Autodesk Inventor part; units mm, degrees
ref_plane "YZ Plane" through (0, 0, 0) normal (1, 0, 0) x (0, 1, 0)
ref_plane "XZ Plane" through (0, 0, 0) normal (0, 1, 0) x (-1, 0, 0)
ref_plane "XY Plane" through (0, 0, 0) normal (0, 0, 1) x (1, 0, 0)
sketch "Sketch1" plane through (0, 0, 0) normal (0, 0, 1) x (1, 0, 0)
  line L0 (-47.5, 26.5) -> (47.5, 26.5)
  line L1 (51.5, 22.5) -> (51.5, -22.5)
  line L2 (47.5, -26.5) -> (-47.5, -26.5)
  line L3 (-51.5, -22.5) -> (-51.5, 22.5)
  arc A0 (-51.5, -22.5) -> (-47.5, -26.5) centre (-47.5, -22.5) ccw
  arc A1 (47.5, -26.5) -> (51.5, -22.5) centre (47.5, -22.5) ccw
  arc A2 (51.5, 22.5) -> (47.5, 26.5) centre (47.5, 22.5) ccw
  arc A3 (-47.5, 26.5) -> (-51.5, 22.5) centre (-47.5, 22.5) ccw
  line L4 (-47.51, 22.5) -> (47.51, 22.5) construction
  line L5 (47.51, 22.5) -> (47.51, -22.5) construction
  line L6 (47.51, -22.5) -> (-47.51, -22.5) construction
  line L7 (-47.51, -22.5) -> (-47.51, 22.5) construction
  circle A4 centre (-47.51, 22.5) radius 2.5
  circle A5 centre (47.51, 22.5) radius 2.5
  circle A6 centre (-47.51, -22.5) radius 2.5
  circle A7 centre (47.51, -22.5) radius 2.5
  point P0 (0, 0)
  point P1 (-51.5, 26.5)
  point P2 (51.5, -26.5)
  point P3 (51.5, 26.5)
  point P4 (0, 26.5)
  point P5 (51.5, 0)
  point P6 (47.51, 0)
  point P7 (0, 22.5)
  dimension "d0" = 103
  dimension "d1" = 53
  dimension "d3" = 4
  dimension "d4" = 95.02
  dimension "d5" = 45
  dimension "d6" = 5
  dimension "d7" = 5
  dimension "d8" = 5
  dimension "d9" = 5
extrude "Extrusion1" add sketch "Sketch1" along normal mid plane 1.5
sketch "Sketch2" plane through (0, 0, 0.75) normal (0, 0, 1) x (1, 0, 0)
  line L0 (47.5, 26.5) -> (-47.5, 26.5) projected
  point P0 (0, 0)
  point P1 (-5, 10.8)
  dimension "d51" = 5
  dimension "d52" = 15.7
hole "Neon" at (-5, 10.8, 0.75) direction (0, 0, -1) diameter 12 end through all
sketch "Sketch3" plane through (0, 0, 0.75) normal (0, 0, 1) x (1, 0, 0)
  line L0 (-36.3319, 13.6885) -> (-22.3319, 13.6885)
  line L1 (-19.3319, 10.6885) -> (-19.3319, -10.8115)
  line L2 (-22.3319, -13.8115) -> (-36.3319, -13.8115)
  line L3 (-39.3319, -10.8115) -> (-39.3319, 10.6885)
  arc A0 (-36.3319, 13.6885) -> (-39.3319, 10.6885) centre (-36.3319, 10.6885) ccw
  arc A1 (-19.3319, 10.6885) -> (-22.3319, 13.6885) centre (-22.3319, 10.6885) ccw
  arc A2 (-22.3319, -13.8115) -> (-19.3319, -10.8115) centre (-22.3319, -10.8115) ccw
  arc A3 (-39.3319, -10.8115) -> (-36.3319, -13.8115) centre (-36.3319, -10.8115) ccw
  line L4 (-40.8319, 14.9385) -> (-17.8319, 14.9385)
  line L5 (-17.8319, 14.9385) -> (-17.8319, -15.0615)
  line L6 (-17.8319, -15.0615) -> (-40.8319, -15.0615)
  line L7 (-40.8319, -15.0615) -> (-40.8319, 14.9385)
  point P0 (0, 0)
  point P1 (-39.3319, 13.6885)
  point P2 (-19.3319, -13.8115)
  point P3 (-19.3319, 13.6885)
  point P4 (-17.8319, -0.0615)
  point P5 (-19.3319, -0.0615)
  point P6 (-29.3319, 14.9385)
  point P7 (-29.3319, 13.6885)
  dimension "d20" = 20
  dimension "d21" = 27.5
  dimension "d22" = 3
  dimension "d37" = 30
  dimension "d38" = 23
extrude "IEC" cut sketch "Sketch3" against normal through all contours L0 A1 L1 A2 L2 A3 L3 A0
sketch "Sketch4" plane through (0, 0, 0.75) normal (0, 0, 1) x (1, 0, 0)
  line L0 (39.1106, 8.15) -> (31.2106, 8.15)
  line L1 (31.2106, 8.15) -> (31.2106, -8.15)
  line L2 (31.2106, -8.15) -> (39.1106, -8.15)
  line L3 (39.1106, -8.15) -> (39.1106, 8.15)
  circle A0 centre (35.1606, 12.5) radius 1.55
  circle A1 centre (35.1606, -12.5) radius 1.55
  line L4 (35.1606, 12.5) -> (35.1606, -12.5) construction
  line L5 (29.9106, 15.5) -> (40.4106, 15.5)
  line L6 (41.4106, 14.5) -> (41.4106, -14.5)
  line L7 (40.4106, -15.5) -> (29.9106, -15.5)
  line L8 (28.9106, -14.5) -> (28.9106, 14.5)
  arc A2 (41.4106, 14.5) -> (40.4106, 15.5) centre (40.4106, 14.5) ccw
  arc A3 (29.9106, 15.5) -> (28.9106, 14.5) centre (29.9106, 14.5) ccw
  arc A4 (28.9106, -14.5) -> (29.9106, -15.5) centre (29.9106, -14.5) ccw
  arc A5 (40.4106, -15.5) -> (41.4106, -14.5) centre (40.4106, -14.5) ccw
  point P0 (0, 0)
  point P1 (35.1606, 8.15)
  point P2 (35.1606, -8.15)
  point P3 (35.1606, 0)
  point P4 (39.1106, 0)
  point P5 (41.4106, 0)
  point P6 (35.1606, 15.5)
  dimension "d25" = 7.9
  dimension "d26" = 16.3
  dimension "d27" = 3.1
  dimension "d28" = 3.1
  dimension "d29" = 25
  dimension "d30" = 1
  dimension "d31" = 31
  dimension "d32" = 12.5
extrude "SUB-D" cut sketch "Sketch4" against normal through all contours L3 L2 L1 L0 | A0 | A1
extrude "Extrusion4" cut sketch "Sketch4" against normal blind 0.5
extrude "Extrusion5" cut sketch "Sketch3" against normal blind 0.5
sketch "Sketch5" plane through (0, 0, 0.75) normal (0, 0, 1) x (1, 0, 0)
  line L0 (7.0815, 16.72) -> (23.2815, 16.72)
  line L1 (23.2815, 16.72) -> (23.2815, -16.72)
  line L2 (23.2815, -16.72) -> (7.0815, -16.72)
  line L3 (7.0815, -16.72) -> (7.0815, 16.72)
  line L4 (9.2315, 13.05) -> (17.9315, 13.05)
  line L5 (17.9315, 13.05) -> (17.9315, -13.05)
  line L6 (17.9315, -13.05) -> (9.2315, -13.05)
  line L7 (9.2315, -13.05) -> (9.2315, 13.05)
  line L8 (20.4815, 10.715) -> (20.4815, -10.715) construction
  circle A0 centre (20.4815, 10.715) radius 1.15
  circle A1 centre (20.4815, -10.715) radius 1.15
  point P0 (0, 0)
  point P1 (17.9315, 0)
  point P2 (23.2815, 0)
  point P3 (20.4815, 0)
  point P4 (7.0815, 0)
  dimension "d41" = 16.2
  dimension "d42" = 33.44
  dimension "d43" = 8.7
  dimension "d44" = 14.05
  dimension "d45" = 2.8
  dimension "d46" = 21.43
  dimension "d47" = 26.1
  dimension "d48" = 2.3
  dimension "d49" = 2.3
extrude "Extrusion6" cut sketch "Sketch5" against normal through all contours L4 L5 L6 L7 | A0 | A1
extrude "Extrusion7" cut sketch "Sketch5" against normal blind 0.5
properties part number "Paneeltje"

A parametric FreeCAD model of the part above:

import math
import FreeCAD as App
import Part
import Sketcher

V = App.Vector


def add_polygon(sketch, points):
    """Adds a closed chain of lines whose ends are joined by coincident constraints."""
    first, n = sketch.GeometryCount, len(points)
    for a, b in zip(points, points[1:] + points[:1]):
        sketch.addGeometry(Part.LineSegment(App.Vector(*a, 0), App.Vector(*b, 0)), False)
    for i in range(n):
        sketch.addConstraint(Sketcher.Constraint("Coincident", first + i, 2, first + (i + 1) % n, 1))

doc = App.newDocument("Part")
body = doc.addObject("PartDesign::Body", "Body")

sketch1 = body.newObject("Sketcher::SketchObject", "Sketch")
sketch1.AttachmentSupport = (doc.getObject("XY_Plane"), [""])
sketch1.MapMode = "FlatFace"
sketch1.addGeometry(Part.LineSegment(V(47.5, 26.5, 0), V(-47.5, 26.5, 0)), False)
sketch1.addGeometry(Part.ArcOfCircle(Part.Circle(V(-47.5, 22.5, 0), V(0, 0, 1), 4), math.radians(90), math.radians(180)), False)
sketch1.addGeometry(Part.LineSegment(V(-51.5, 22.5, 0), V(-51.5, -22.5, 0)), False)
sketch1.addGeometry(Part.ArcOfCircle(Part.Circle(V(-47.5, -22.5, 0), V(0, 0, 1), 4), math.radians(180), math.radians(270)), False)
sketch1.addGeometry(Part.LineSegment(V(-47.5, -26.5, 0), V(47.5, -26.5, 0)), False)
sketch1.addGeometry(Part.ArcOfCircle(Part.Circle(V(47.5, -22.5, 0), V(0, 0, 1), 4), math.radians(-90), math.radians(0)), False)
sketch1.addGeometry(Part.LineSegment(V(51.5, -22.5, 0), V(51.5, 22.5, 0)), False)
sketch1.addGeometry(Part.ArcOfCircle(Part.Circle(V(47.5, 22.5, 0), V(0, 0, 1), 4), math.radians(0), math.radians(90)), False)
sketch1.addGeometry(Part.Circle(V(-47.51, -22.5, 0), V(0, 0, 1), 2.5), False)
sketch1.addGeometry(Part.Circle(V(47.51, -22.5, 0), V(0, 0, 1), 2.5), False)
sketch1.addGeometry(Part.Circle(V(-47.51, 22.5, 0), V(0, 0, 1), 2.5), False)
sketch1.addGeometry(Part.Circle(V(47.51, 22.5, 0), V(0, 0, 1), 2.5), False)
sketch1.addConstraint(Sketcher.Constraint("Tangent", 0, 2, 1, 1))
sketch1.addConstraint(Sketcher.Constraint("Tangent", 1, 2, 2, 1))
sketch1.addConstraint(Sketcher.Constraint("Tangent", 2, 2, 3, 1))
sketch1.addConstraint(Sketcher.Constraint("Tangent", 3, 2, 4, 1))
sketch1.addConstraint(Sketcher.Constraint("Tangent", 4, 2, 5, 1))
sketch1.addConstraint(Sketcher.Constraint("Tangent", 5, 2, 6, 1))
sketch1.addConstraint(Sketcher.Constraint("Tangent", 6, 2, 7, 1))
sketch1.addConstraint(Sketcher.Constraint("Tangent", 7, 2, 0, 1))
sketch1.addConstraint(Sketcher.Constraint("Horizontal", 0))
sketch1.addConstraint(Sketcher.Constraint("Vertical", 2))
sketch1.addConstraint(Sketcher.Constraint("Horizontal", 4))
sketch1.addConstraint(Sketcher.Constraint("Vertical", 6))
sketch1.addConstraint(Sketcher.Constraint("Equal", 1, 3))
sketch1.addConstraint(Sketcher.Constraint("Equal", 3, 5))
sketch1.addConstraint(Sketcher.Constraint("Equal", 5, 7))
sketch1.addConstraint(Sketcher.Constraint("Equal", 8, 9))
sketch1.addConstraint(Sketcher.Constraint("Equal", 9, 10))
sketch1.addConstraint(Sketcher.Constraint("Equal", 10, 11))
sketch1.addConstraint(Sketcher.Constraint("Symmetric", 1, 3, 5, 3, -1, 1))
sketch1.addConstraint(Sketcher.Constraint("Symmetric", 9, 3, 10, 3, -1, 1))
sketch1.addConstraint(Sketcher.Constraint("Symmetric", 8, 3, 11, 3, -1, 1))
sketch1.addConstraint(Sketcher.Constraint("Symmetric", 8, 3, 9, 3, -2))
sketch1.addConstraint(Sketcher.Constraint("Horizontal", 5, 3, 8, 3))
sketch1.addConstraint(Sketcher.Constraint("Diameter", 8, 5.0))
sketch1.addConstraint(Sketcher.Constraint("Radius", 1, 4.0))
sketch1.addConstraint(Sketcher.Constraint("DistanceY", 2, 2, 2, 1, 45.0))
sketch1.addConstraint(Sketcher.Constraint("DistanceX", 0, 2, 0, 1, 95.0))
sketch1.addConstraint(Sketcher.Constraint("DistanceX", 8, 3, 9, 3, 95.02))
pad1 = body.newObject("PartDesign::Pad", "Pad")
pad1.Profile = sketch1
pad1.Length = 1.5
pad1.Midplane = True

sketch2 = body.newObject("Sketcher::SketchObject", "Sketch001")
sketch2.AttachmentSupport = (doc.getObject("XY_Plane"), [""])
sketch2.MapMode = "FlatFace"
sketch2.AttachmentOffset = App.Placement(V(0, 0, 0.75), App.Rotation())
sketch2.addGeometry(Part.Circle(V(-5, 10.8, 0), V(0, 0, 1), 6), False)
sketch2.addConstraint(Sketcher.Constraint("Diameter", 0, 12.0))
sketch2.addConstraint(Sketcher.Constraint("DistanceX", 0, 3, -1, 1, 5.0))
sketch2.addConstraint(Sketcher.Constraint("DistanceY", -1, 1, 0, 3, 10.8))
doc.recompute()
hole = body.newObject("PartDesign::Hole", "Hole")
hole.Profile = sketch2
hole.ThreadType = "None"
hole.Diameter = 12
hole.DepthType = "ThroughAll"

sketch3 = body.newObject("Sketcher::SketchObject", "Sketch002")
sketch3.AttachmentSupport = (doc.getObject("XY_Plane"), [""])
sketch3.MapMode = "FlatFace"
sketch3.AttachmentOffset = App.Placement(V(0, 0, 0.75), App.Rotation())
sketch3.addGeometry(Part.LineSegment(V(-22.3319, 13.6885, 0), V(-36.3319, 13.6885, 0)), False)
sketch3.addGeometry(Part.ArcOfCircle(Part.Circle(V(-36.3319, 10.6885, 0), V(0, 0, 1), 3), math.radians(90), math.radians(180)), False)
sketch3.addGeometry(Part.LineSegment(V(-39.3319, 10.6885, 0), V(-39.3319, -10.8115, 0)), False)
sketch3.addGeometry(Part.ArcOfCircle(Part.Circle(V(-36.3319, -10.8115, 0), V(0, 0, 1), 3), math.radians(180), math.radians(270)), False)
sketch3.addGeometry(Part.LineSegment(V(-36.3319, -13.8115, 0), V(-22.3319, -13.8115, 0)), False)
sketch3.addGeometry(Part.ArcOfCircle(Part.Circle(V(-22.3319, -10.8115, 0), V(0, 0, 1), 3), math.radians(-90), math.radians(0)), False)
sketch3.addGeometry(Part.LineSegment(V(-19.3319, -10.8115, 0), V(-19.3319, 10.6885, 0)), False)
sketch3.addGeometry(Part.ArcOfCircle(Part.Circle(V(-22.3319, 10.6885, 0), V(0, 0, 1), 3), math.radians(0), math.radians(90)), False)
sketch3.addConstraint(Sketcher.Constraint("Tangent", 0, 2, 1, 1))
sketch3.addConstraint(Sketcher.Constraint("Tangent", 1, 2, 2, 1))
sketch3.addConstraint(Sketcher.Constraint("Tangent", 2, 2, 3, 1))
sketch3.addConstraint(Sketcher.Constraint("Tangent", 3, 2, 4, 1))
sketch3.addConstraint(Sketcher.Constraint("Tangent", 4, 2, 5, 1))
sketch3.addConstraint(Sketcher.Constraint("Tangent", 5, 2, 6, 1))
sketch3.addConstraint(Sketcher.Constraint("Tangent", 6, 2, 7, 1))
sketch3.addConstraint(Sketcher.Constraint("Tangent", 7, 2, 0, 1))
sketch3.addConstraint(Sketcher.Constraint("Horizontal", 0))
sketch3.addConstraint(Sketcher.Constraint("Vertical", 2))
sketch3.addConstraint(Sketcher.Constraint("Horizontal", 4))
sketch3.addConstraint(Sketcher.Constraint("Vertical", 6))
sketch3.addConstraint(Sketcher.Constraint("Equal", 1, 3))
sketch3.addConstraint(Sketcher.Constraint("Equal", 3, 5))
sketch3.addConstraint(Sketcher.Constraint("Equal", 5, 7))
sketch3.addConstraint(Sketcher.Constraint("Radius", 1, 3.0))
sketch3.addConstraint(Sketcher.Constraint("DistanceX", 2, 2, 5, 2, 20.0))
sketch3.addConstraint(Sketcher.Constraint("DistanceY", 2, 2, 2, 1, 21.5))
sketch3.addConstraint(Sketcher.Constraint("DistanceX", 1, 3, -1, 1, 36.332))
sketch3.addConstraint(Sketcher.Constraint("DistanceY", -1, 1, 1, 3, 10.6885))
pocket1 = body.newObject("PartDesign::Pocket", "Pocket")
pocket1.Profile = sketch3
pocket1.Type = "ThroughAll"

sketch4 = body.newObject("Sketcher::SketchObject", "Sketch003")
sketch4.AttachmentSupport = (doc.getObject("XY_Plane"), [""])
sketch4.MapMode = "FlatFace"
sketch4.AttachmentOffset = App.Placement(V(0, 0, 0.75), App.Rotation())
add_polygon(sketch4, [(39.1106, -8.15), (39.1106, 8.15), (31.2106, 8.15), (31.2106, -8.15)])
sketch4.addGeometry(Part.Circle(V(35.1606, 12.5, 0), V(0, 0, 1), 1.55), False)
sketch4.addGeometry(Part.Circle(V(35.1606, -12.5, 0), V(0, 0, 1), 1.55), False)
sketch4.addConstraint(Sketcher.Constraint("Vertical", 0))
sketch4.addConstraint(Sketcher.Constraint("Horizontal", 1))
sketch4.addConstraint(Sketcher.Constraint("Vertical", 2))
sketch4.addConstraint(Sketcher.Constraint("Horizontal", 3))
sketch4.addConstraint(Sketcher.Constraint("Equal", 4, 5))
sketch4.addConstraint(Sketcher.Constraint("Symmetric", 4, 3, 5, 3, -1))
sketch4.addConstraint(Sketcher.Constraint("Diameter", 4, 3.1))
sketch4.addConstraint(Sketcher.Constraint("DistanceX", 1, 2, 1, 1, 7.9))
sketch4.addConstraint(Sketcher.Constraint("DistanceY", 0, 1, 0, 2, 16.3))
sketch4.addConstraint(Sketcher.Constraint("DistanceY", 5, 3, 4, 3, 25.0))
sketch4.addConstraint(Sketcher.Constraint("DistanceY", -1, 1, 0, 2, 8.15))
sketch4.addConstraint(Sketcher.Constraint("DistanceX", 4, 3, 0, 2, 3.95))
sketch4.addConstraint(Sketcher.Constraint("DistanceX", -1, 1, 4, 3, 35.1606))
pocket2 = body.newObject("PartDesign::Pocket", "Pocket001")
pocket2.Profile = sketch4
pocket2.Type = "ThroughAll"

sketch5 = body.newObject("Sketcher::SketchObject", "Sketch004")
sketch5.AttachmentSupport = (doc.getObject("XY_Plane"), [""])
sketch5.MapMode = "FlatFace"
sketch5.AttachmentOffset = App.Placement(V(0, 0, 0.75), App.Rotation())
sketch5.addGeometry(Part.LineSegment(V(40.4106, 15.5, 0), V(29.9106, 15.5, 0)), False)
sketch5.addGeometry(Part.ArcOfCircle(Part.Circle(V(29.9106, 14.5, 0), V(0, 0, 1), 1), math.radians(90), math.radians(180)), False)
sketch5.addGeometry(Part.LineSegment(V(28.9106, 14.5, 0), V(28.9106, -14.5, 0)), False)
sketch5.addGeometry(Part.ArcOfCircle(Part.Circle(V(29.9106, -14.5, 0), V(0, 0, 1), 1), math.radians(180), math.radians(270)), False)
sketch5.addGeometry(Part.LineSegment(V(29.9106, -15.5, 0), V(40.4106, -15.5, 0)), False)
sketch5.addGeometry(Part.ArcOfCircle(Part.Circle(V(40.4106, -14.5, 0), V(0, 0, 1), 1), math.radians(-90), math.radians(0)), False)
sketch5.addGeometry(Part.LineSegment(V(41.4106, -14.5, 0), V(41.4106, 14.5, 0)), False)
sketch5.addGeometry(Part.ArcOfCircle(Part.Circle(V(40.4106, 14.5, 0), V(0, 0, 1), 1), math.radians(0), math.radians(90)), False)
sketch5.addGeometry(Part.Circle(V(35.1606, -12.5, 0), V(0, 0, 1), 1.55), False)
add_polygon(sketch5, [(31.2106, 8.15), (39.1106, 8.15), (39.1106, -8.15), (31.2106, -8.15)])
sketch5.addGeometry(Part.Circle(V(35.1606, 12.5, 0), V(0, 0, 1), 1.55), False)
sketch5.addConstraint(Sketcher.Constraint("Tangent", 0, 2, 1, 1))
sketch5.addConstraint(Sketcher.Constraint("Tangent", 1, 2, 2, 1))
sketch5.addConstraint(Sketcher.Constraint("Tangent", 2, 2, 3, 1))
sketch5.addConstraint(Sketcher.Constraint("Tangent", 3, 2, 4, 1))
sketch5.addConstraint(Sketcher.Constraint("Tangent", 4, 2, 5, 1))
sketch5.addConstraint(Sketcher.Constraint("Tangent", 5, 2, 6, 1))
sketch5.addConstraint(Sketcher.Constraint("Tangent", 6, 2, 7, 1))
sketch5.addConstraint(Sketcher.Constraint("Tangent", 7, 2, 0, 1))
sketch5.addConstraint(Sketcher.Constraint("Horizontal", 0))
sketch5.addConstraint(Sketcher.Constraint("Vertical", 2))
sketch5.addConstraint(Sketcher.Constraint("Horizontal", 4))
sketch5.addConstraint(Sketcher.Constraint("Vertical", 6))
sketch5.addConstraint(Sketcher.Constraint("Horizontal", 9))
sketch5.addConstraint(Sketcher.Constraint("Vertical", 10))
sketch5.addConstraint(Sketcher.Constraint("Horizontal", 11))
sketch5.addConstraint(Sketcher.Constraint("Vertical", 12))
sketch5.addConstraint(Sketcher.Constraint("Equal", 1, 3))
sketch5.addConstraint(Sketcher.Constraint("Equal", 3, 5))
sketch5.addConstraint(Sketcher.Constraint("Equal", 5, 7))
sketch5.addConstraint(Sketcher.Constraint("Equal", 8, 13))
sketch5.addConstraint(Sketcher.Constraint("Symmetric", 8, 3, 13, 3, -1))
sketch5.addConstraint(Sketcher.Constraint("Radius", 1, 1.0))
sketch5.addConstraint(Sketcher.Constraint("Diameter", 8, 3.1))
sketch5.addConstraint(Sketcher.Constraint("DistanceX", 9, 1, 9, 2, 7.9))
sketch5.addConstraint(Sketcher.Constraint("DistanceY", 10, 2, 10, 1, 16.3))
sketch5.addConstraint(Sketcher.Constraint("DistanceY", 8, 3, 13, 3, 25.0))
sketch5.addConstraint(Sketcher.Constraint("DistanceX", 1, 2, 6, 2, 12.5))
sketch5.addConstraint(Sketcher.Constraint("DistanceY", 2, 2, 2, 1, 29.0))
sketch5.addConstraint(Sketcher.Constraint("DistanceY", 5, 3, 8, 3, 2.0))
sketch5.addConstraint(Sketcher.Constraint("DistanceX", 9, 2, 7, 3, 1.3))
sketch5.addConstraint(Sketcher.Constraint("DistanceY", -1, 1, 9, 2, 8.15))
sketch5.addConstraint(Sketcher.Constraint("DistanceX", 8, 3, 5, 3, 5.25))
sketch5.addConstraint(Sketcher.Constraint("DistanceX", -1, 1, 1, 3, 29.9106))
pocket3 = body.newObject("PartDesign::Pocket", "Pocket002")
pocket3.Profile = sketch5
pocket3.Length = 0.5

sketch6 = body.newObject("Sketcher::SketchObject", "Sketch005")
sketch6.AttachmentSupport = (doc.getObject("XY_Plane"), [""])
sketch6.MapMode = "FlatFace"
sketch6.AttachmentOffset = App.Placement(V(0, 0, 0.75), App.Rotation())
add_polygon(sketch6, [(-17.8319, 14.9385), (-40.8319, 14.9385), (-40.8319, -15.0615), (-17.8319, -15.0615)])
sketch6.addGeometry(Part.ArcOfCircle(Part.Circle(V(-36.3319, 10.6885, 0), V(0, 0, 1), 3), math.radians(90), math.radians(180)), False)
sketch6.addGeometry(Part.LineSegment(V(-36.3319, 13.6885, 0), V(-22.3319, 13.6885, 0)), False)
sketch6.addGeometry(Part.ArcOfCircle(Part.Circle(V(-22.3319, 10.6885, 0), V(0, 0, 1), 3), math.radians(0), math.radians(90)), False)
sketch6.addGeometry(Part.LineSegment(V(-19.3319, 10.6885, 0), V(-19.3319, -10.8115, 0)), False)
sketch6.addGeometry(Part.ArcOfCircle(Part.Circle(V(-22.3319, -10.8115, 0), V(0, 0, 1), 3), math.radians(-90), math.radians(0)), False)
sketch6.addGeometry(Part.LineSegment(V(-22.3319, -13.8115, 0), V(-36.3319, -13.8115, 0)), False)
sketch6.addGeometry(Part.ArcOfCircle(Part.Circle(V(-36.3319, -10.8115, 0), V(0, 0, 1), 3), math.radians(180), math.radians(270)), False)
sketch6.addGeometry(Part.LineSegment(V(-39.3319, -10.8115, 0), V(-39.3319, 10.6885, 0)), False)
sketch6.addConstraint(Sketcher.Constraint("Tangent", 4, 1, 5, 1))
sketch6.addConstraint(Sketcher.Constraint("Tangent", 5, 2, 6, 2))
sketch6.addConstraint(Sketcher.Constraint("Tangent", 6, 1, 7, 1))
sketch6.addConstraint(Sketcher.Constraint("Tangent", 7, 2, 8, 2))
sketch6.addConstraint(Sketcher.Constraint("Tangent", 8, 1, 9, 1))
sketch6.addConstraint(Sketcher.Constraint("Tangent", 9, 2, 10, 2))
sketch6.addConstraint(Sketcher.Constraint("Tangent", 10, 1, 11, 1))
sketch6.addConstraint(Sketcher.Constraint("Tangent", 11, 2, 4, 2))
sketch6.addConstraint(Sketcher.Constraint("Horizontal", 0))
sketch6.addConstraint(Sketcher.Constraint("Vertical", 1))
sketch6.addConstraint(Sketcher.Constraint("Horizontal", 2))
sketch6.addConstraint(Sketcher.Constraint("Vertical", 3))
sketch6.addConstraint(Sketcher.Constraint("Horizontal", 5))
sketch6.addConstraint(Sketcher.Constraint("Vertical", 7))
sketch6.addConstraint(Sketcher.Constraint("Horizontal", 9))
sketch6.addConstraint(Sketcher.Constraint("Vertical", 11))
sketch6.addConstraint(Sketcher.Constraint("Equal", 4, 6))
sketch6.addConstraint(Sketcher.Constraint("Equal", 6, 8))
sketch6.addConstraint(Sketcher.Constraint("Equal", 8, 10))
sketch6.addConstraint(Sketcher.Constraint("Radius", 4, 3.0))
sketch6.addConstraint(Sketcher.Constraint("DistanceX", 0, 2, 0, 1, 23.0))
sketch6.addConstraint(Sketcher.Constraint("DistanceY", 1, 2, 1, 1, 30.0))
sketch6.addConstraint(Sketcher.Constraint("DistanceX", 5, 1, 5, 2, 14.0))
sketch6.addConstraint(Sketcher.Constraint("DistanceY", 7, 2, 7, 1, 21.5))
sketch6.addConstraint(Sketcher.Constraint("DistanceX", 0, 2, 4, 3, 4.5))
sketch6.addConstraint(Sketcher.Constraint("DistanceY", 4, 3, 0, 2, 4.25))
sketch6.addConstraint(Sketcher.Constraint("DistanceX", 4, 3, -1, 1, 36.332))
sketch6.addConstraint(Sketcher.Constraint("DistanceY", -1, 1, 4, 3, 10.6885))
pocket4 = body.newObject("PartDesign::Pocket", "Pocket003")
pocket4.Profile = sketch6
pocket4.Length = 0.5

sketch7 = body.newObject("Sketcher::SketchObject", "Sketch006")
sketch7.AttachmentSupport = (doc.getObject("XY_Plane"), [""])
sketch7.MapMode = "FlatFace"
sketch7.AttachmentOffset = App.Placement(V(0, 0, 0.75), App.Rotation())
add_polygon(sketch7, [(17.9315, 13.05), (9.2315, 13.05), (9.2315, -13.05), (17.9315, -13.05)])
sketch7.addGeometry(Part.Circle(V(20.4815, 10.715, 0), V(0, 0, 1), 1.15), False)
sketch7.addGeometry(Part.Circle(V(20.4815, -10.715, 0), V(0, 0, 1), 1.15), False)
sketch7.addConstraint(Sketcher.Constraint("Horizontal", 0))
sketch7.addConstraint(Sketcher.Constraint("Vertical", 1))
sketch7.addConstraint(Sketcher.Constraint("Horizontal", 2))
sketch7.addConstraint(Sketcher.Constraint("Vertical", 3))
sketch7.addConstraint(Sketcher.Constraint("Equal", 4, 5))
sketch7.addConstraint(Sketcher.Constraint("Symmetric", 4, 3, 5, 3, -1))
sketch7.addConstraint(Sketcher.Constraint("Diameter", 4, 2.3))
sketch7.addConstraint(Sketcher.Constraint("DistanceX", 0, 2, 0, 1, 8.7))
sketch7.addConstraint(Sketcher.Constraint("DistanceY", 1, 2, 1, 1, 26.1))
sketch7.addConstraint(Sketcher.Constraint("DistanceY", 5, 3, 4, 3, 21.43))
sketch7.addConstraint(Sketcher.Constraint("DistanceY", -1, 1, 0, 2, 13.05))
sketch7.addConstraint(Sketcher.Constraint("DistanceX", 0, 2, 4, 3, 11.25))
sketch7.addConstraint(Sketcher.Constraint("DistanceX", -1, 1, 4, 3, 20.4815))
pocket5 = body.newObject("PartDesign::Pocket", "Pocket004")
pocket5.Profile = sketch7
pocket5.Type = "ThroughAll"

sketch8 = body.newObject("Sketcher::SketchObject", "Sketch007")
sketch8.AttachmentSupport = (doc.getObject("XY_Plane"), [""])
sketch8.MapMode = "FlatFace"
sketch8.AttachmentOffset = App.Placement(V(0, 0, 0.75), App.Rotation())
add_polygon(sketch8, [(23.2815, 16.72), (7.0815, 16.72), (7.0815, -16.72), (23.2815, -16.72)])
sketch8.addGeometry(Part.Circle(V(20.4815, -10.715, 0), V(0, 0, 1), 1.15), False)
add_polygon(sketch8, [(9.2315, -13.05), (9.2315, 13.05), (17.9315, 13.05), (17.9315, -13.05)])
sketch8.addGeometry(Part.Circle(V(20.4815, 10.715, 0), V(0, 0, 1), 1.15), False)
sketch8.addConstraint(Sketcher.Constraint("Horizontal", 0))
sketch8.addConstraint(Sketcher.Constraint("Vertical", 1))
sketch8.addConstraint(Sketcher.Constraint("Horizontal", 2))
sketch8.addConstraint(Sketcher.Constraint("Vertical", 3))
sketch8.addConstraint(Sketcher.Constraint("Vertical", 5))
sketch8.addConstraint(Sketcher.Constraint("Horizontal", 6))
sketch8.addConstraint(Sketcher.Constraint("Vertical", 7))
sketch8.addConstraint(Sketcher.Constraint("Horizontal", 8))
sketch8.addConstraint(Sketcher.Constraint("Equal", 4, 9))
sketch8.addConstraint(Sketcher.Constraint("Symmetric", 4, 3, 9, 3, -1))
sketch8.addConstraint(Sketcher.Constraint("Diameter", 4, 2.3))
sketch8.addConstraint(Sketcher.Constraint("DistanceX", 0, 2, 0, 1, 16.2))
sketch8.addConstraint(Sketcher.Constraint("DistanceX", 6, 1, 6, 2, 8.7))
sketch8.addConstraint(Sketcher.Constraint("DistanceY", 5, 1, 5, 2, 26.1))
sketch8.addConstraint(Sketcher.Constraint("DistanceY", 1, 2, 1, 1, 33.44))
sketch8.addConstraint(Sketcher.Constraint("DistanceX", 4, 3, 2, 2, 2.8))
sketch8.addConstraint(Sketcher.Constraint("DistanceY", 4, 3, 9, 3, 21.43))
sketch8.addConstraint(Sketcher.Constraint("DistanceX", 5, 2, 3, 2, 14.05))
sketch8.addConstraint(Sketcher.Constraint("DistanceY", -1, 1, 0, 2, 16.72))
sketch8.addConstraint(Sketcher.Constraint("DistanceY", -1, 1, 5, 2, 13.05))
sketch8.addConstraint(Sketcher.Constraint("DistanceX", -1, 1, 4, 3, 20.4815))
pocket6 = body.newObject("PartDesign::Pocket", "Pocket005")
pocket6.Profile = sketch8
pocket6.Length = 0.5

doc.recompute()
